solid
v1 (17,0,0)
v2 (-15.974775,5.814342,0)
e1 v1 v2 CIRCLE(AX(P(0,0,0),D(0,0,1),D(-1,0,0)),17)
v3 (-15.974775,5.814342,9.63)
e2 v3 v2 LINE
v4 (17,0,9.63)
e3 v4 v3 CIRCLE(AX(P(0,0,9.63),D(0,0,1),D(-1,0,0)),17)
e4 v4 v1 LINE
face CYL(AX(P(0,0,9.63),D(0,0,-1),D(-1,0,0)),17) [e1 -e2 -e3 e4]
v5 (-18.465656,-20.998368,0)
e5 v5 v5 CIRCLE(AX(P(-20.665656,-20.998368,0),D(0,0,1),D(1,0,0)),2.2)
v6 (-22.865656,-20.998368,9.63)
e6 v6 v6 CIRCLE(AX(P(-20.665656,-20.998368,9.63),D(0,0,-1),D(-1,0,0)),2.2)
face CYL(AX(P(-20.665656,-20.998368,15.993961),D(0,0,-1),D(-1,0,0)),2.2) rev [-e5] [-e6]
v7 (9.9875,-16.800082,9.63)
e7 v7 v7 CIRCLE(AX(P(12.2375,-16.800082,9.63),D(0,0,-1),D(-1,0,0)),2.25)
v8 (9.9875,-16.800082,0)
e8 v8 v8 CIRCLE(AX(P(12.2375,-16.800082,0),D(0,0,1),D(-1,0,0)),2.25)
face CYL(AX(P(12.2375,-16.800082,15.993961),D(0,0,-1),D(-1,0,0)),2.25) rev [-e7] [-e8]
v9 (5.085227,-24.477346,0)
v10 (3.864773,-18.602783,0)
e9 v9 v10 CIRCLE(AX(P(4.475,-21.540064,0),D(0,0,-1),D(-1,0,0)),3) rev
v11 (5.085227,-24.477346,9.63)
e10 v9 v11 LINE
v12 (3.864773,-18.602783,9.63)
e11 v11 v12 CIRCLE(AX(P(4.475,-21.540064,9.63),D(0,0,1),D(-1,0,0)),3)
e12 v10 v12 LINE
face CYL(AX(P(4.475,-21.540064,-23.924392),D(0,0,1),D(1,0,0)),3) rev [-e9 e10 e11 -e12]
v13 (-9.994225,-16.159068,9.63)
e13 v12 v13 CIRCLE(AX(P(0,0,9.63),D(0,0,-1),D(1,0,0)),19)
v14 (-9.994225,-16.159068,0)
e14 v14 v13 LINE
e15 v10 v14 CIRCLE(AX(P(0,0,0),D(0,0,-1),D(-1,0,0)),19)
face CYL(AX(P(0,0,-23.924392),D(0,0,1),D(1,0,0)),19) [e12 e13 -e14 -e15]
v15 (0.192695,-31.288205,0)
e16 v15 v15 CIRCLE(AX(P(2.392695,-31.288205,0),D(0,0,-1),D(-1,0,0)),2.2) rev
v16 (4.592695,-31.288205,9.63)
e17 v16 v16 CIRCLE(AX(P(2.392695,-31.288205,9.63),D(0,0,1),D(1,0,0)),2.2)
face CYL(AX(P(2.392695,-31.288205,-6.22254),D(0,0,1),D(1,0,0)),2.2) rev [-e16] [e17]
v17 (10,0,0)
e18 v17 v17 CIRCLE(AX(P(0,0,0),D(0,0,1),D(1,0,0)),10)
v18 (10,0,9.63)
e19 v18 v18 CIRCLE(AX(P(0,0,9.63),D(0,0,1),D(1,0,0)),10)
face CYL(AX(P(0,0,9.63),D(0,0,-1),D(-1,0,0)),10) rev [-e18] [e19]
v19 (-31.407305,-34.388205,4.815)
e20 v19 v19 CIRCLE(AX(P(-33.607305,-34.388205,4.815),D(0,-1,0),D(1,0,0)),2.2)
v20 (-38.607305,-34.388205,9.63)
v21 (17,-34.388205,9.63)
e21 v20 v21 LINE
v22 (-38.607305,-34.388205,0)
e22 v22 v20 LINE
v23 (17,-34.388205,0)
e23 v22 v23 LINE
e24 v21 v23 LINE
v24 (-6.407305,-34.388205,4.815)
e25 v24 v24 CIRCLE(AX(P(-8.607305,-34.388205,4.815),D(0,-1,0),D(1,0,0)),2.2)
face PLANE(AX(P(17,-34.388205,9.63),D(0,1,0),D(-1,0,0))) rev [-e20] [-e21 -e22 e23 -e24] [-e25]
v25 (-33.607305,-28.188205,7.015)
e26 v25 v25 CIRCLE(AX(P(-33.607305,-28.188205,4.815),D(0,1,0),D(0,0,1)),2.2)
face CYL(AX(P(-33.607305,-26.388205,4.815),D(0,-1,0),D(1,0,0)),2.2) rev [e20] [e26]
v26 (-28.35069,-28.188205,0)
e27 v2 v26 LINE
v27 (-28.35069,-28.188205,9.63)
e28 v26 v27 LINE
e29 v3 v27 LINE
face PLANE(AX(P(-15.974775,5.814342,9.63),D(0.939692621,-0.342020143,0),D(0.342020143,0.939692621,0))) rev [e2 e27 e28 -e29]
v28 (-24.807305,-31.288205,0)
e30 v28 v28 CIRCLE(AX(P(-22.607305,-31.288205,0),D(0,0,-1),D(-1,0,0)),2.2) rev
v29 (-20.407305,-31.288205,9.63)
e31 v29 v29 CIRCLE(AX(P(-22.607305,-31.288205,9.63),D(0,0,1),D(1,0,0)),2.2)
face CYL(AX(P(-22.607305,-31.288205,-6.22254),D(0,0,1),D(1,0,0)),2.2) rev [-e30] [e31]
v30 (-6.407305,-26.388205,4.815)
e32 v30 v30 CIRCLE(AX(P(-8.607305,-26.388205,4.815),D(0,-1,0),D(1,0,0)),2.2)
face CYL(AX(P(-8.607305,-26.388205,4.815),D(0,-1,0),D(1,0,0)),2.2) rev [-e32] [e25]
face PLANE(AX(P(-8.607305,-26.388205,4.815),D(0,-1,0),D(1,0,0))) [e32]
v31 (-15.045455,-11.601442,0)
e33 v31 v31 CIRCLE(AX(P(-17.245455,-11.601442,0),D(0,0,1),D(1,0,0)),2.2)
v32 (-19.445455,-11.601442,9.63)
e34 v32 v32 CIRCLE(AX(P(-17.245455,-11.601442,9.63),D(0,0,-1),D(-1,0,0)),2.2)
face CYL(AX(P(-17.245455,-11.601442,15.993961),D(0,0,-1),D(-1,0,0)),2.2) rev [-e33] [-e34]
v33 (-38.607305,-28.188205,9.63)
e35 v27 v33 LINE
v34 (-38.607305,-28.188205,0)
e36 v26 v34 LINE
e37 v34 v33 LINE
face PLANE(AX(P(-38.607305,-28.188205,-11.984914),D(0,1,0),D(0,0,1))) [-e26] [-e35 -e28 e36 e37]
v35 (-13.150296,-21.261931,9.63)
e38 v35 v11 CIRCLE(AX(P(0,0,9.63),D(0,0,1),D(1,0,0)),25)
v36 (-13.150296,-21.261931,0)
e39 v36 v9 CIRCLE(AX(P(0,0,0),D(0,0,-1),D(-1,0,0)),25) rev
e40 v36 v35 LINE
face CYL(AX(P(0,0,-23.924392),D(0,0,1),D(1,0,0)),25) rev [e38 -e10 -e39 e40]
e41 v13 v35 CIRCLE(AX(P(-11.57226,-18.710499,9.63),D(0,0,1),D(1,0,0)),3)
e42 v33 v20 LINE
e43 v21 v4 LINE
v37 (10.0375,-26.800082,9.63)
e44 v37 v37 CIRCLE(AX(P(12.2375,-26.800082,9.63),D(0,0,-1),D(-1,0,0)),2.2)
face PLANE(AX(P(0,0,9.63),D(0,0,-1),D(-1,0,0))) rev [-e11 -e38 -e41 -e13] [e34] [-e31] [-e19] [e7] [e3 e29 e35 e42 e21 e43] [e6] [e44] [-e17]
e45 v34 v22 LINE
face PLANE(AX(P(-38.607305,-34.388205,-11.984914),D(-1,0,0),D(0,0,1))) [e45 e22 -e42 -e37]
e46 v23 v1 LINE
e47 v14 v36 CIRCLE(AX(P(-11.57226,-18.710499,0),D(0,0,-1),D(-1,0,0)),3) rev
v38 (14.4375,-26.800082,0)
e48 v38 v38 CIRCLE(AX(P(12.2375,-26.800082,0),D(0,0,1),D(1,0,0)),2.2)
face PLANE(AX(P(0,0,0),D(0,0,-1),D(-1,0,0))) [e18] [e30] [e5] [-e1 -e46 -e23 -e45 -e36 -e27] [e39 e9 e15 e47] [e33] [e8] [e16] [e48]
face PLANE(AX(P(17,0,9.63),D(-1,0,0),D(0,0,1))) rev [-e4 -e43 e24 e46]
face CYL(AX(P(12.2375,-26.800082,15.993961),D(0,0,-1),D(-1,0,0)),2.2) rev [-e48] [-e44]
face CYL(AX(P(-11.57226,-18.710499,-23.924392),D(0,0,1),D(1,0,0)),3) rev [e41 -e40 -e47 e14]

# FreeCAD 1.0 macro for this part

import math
import FreeCAD as App
import Part
import Sketcher

V = App.Vector
Q = App.Units.Quantity

doc = App.newDocument("Part")
params = doc.addObject("Spreadsheet::Sheet", "Params")
for row, (alias, value) in enumerate([
    ("sketch1_diameter", "20 mm"),
    ("sketch1_radius", "17 mm"),
    ("pad1_length", "9.63 mm"),
    ("sketch2_diameter", "4.4 mm"),
    ("sketch2_diameter2", "4.5 mm"),
    ("pocket1_length", "9.63 mm"),
    ("sketch3_radius", "19 mm"),
    ("sketch3_radius2", "3 mm"),
    ("pocket2_length", "9.63 mm"),
    ("sketch4_width", "8 mm"),
    ("sketch4_height", "6.2 mm"),
    ("pad2_length", "9.63 mm"),
    ("sketch5_diameter", "4.4 mm"),
    ("pocket3_length", "8 mm"),
    ("sketch6_diameter", "4.4 mm"),
    ("pocket4_length", "9.63 mm"),
], start=1):
    params.set(f"A{row}", alias)
    params.set(f"B{row}", "=" + value)
    params.setAlias(f"B{row}", alias)

body = doc.addObject("PartDesign::Body", "Body")

sketch1 = body.newObject("Sketcher::SketchObject", "Sketch")
sketch1.AttachmentSupport = (doc.getObject("XY_Plane"), [""])
sketch1.MapMode = "FlatFace"
sketch1.addGeometry(Part.LineSegment(V(17, -34, 0), V(17, 0, 0)), False)
sketch1.addGeometry(Part.ArcOfCircle(Part.Circle(V(0, 0, 0), V(0, 0, 1), 17), math.radians(0), math.radians(160)), False)
sketch1.addGeometry(Part.LineSegment(V(-16, 6, 0), V(-31, -34, 0)), False)
sketch1.addGeometry(Part.LineSegment(V(-31, -34, 0), V(17, -34, 0)), False)
sketch1.addGeometry(Part.Circle(V(0, 0, 0), V(0, 0, 1), 10), False)
sketch1.addConstraint(Sketcher.Constraint("Tangent", 0, 2, 1, 1))
sketch1.addConstraint(Sketcher.Constraint("Tangent", 1, 2, 2, 1))
sketch1.addConstraint(Sketcher.Constraint("Coincident", 2, 2, 3, 1))
sketch1.addConstraint(Sketcher.Constraint("Coincident", 3, 2, 0, 1))
sketch1.addConstraint(Sketcher.Constraint("Vertical", 0))
sketch1.addConstraint(Sketcher.Constraint("Horizontal", 3))
sketch1.addConstraint(Sketcher.Constraint("Coincident", 1, 3, -1, 1))
sketch1.addConstraint(Sketcher.Constraint("Coincident", 4, 3, -1, 1))
sketch1.addConstraint(Sketcher.Constraint("Diameter", 4, Q("20 mm")))
sketch1.addConstraint(Sketcher.Constraint("Radius", 1, Q("17 mm")))
sketch1.addConstraint(Sketcher.Constraint("Angle", 2, Q("-110 deg")))
sketch1.addConstraint(Sketcher.Constraint("DistanceX", 3, 1, 3, 2, Q("47.607305 mm")))
sketch1.setExpression("Constraints[8]", "Params.sketch1_diameter")
sketch1.setExpression("Constraints[9]", "Params.sketch1_radius")
pad1 = body.newObject("PartDesign::Pad", "Pad")
pad1.Profile = sketch1
pad1.setExpression("Length", "Params.pad1_length")

sketch2 = body.newObject("Sketcher::SketchObject", "Sketch001")
sketch2.AttachmentSupport = (doc.getObject("XY_Plane"), [""])
sketch2.MapMode = "FlatFace"
sketch2.addGeometry(Part.Circle(V(12.2, -26.8, 0), V(0, 0, 1), 2.2), False)
sketch2.addGeometry(Part.Circle(V(12.2, -16.8, 0), V(0, 0, 1), 2.2), False)
sketch2.addGeometry(Part.Circle(V(-20.7, -21, 0), V(0, 0, 1), 2.2), False)
sketch2.addGeometry(Part.Circle(V(-17.2, -11.6, 0), V(0, 0, 1), 2.2), False)
sketch2.addConstraint(Sketcher.Constraint("Equal", 0, 2))
sketch2.addConstraint(Sketcher.Constraint("Equal", 2, 3))
sketch2.addConstraint(Sketcher.Constraint("Vertical", 0, 3, 1, 3))
sketch2.addConstraint(Sketcher.Constraint("Diameter", 0, Q("4.4 mm")))
sketch2.addConstraint(Sketcher.Constraint("Diameter", 1, Q("4.5 mm")))
sketch2.addConstraint(Sketcher.Constraint("DistanceY", 0, 3, 1, 3, Q("10 mm")))
sketch2.addConstraint(Sketcher.Constraint("DistanceX", -1, 1, 0, 3, Q("12.2375 mm")))
sketch2.addConstraint(Sketcher.Constraint("DistanceX", 2, 3, 3, 3, Q("3.420201 mm")))
sketch2.addConstraint(Sketcher.Constraint("DistanceY", 2, 3, -1, 1, Q("20.998368 mm")))
sketch2.addConstraint(Sketcher.Constraint("DistanceY", 3, 3, -1, 1, Q("11.601442 mm")))
sketch2.addConstraint(Sketcher.Constraint("DistanceY", 1, 3, 3, 3, Q("5.19864 mm")))
sketch2.addConstraint(Sketcher.Constraint("DistanceX", 2, 3, -1, 1, Q("20.665656 mm")))
sketch2.setExpression("Constraints[3]", "Params.sketch2_diameter")
sketch2.setExpression("Constraints[4]", "Params.sketch2_diameter2")
pocket1 = body.newObject("PartDesign::Pocket", "Pocket")
pocket1.Profile = sketch2
pocket1.setExpression("Length", "Params.pocket1_length")
pocket1.Reversed = True

sketch3 = body.newObject("Sketcher::SketchObject", "Sketch002")
sketch3.AttachmentSupport = (doc.getObject("XY_Plane"), [""])
sketch3.MapMode = "FlatFace"
sketch3.AttachmentOffset = App.Placement(V(0, 0, 9.63), App.Rotation())
sketch3.addGeometry(Part.ArcOfCircle(Part.Circle(V(0, 0, 0), V(0, 0, 1), 19), math.radians(-122), math.radians(-78)), False)
sketch3.addGeometry(Part.ArcOfCircle(Part.Circle(V(-11.6, -18.7, 0), V(0, 0, 1), 3), math.radians(58), math.radians(238)), False)
sketch3.addGeometry(Part.ArcOfCircle(Part.Circle(V(0, 0, 0), V(0, 0, 1), 25), math.radians(-122), math.radians(-78)), False)
sketch3.addGeometry(Part.ArcOfCircle(Part.Circle(V(4.5, -21.5, 0), V(0, 0, 1), 3), math.radians(-78), math.radians(102)), False)
sketch3.addConstraint(Sketcher.Constraint("Tangent", 0, 1, 1, 1))
sketch3.addConstraint(Sketcher.Constraint("Tangent", 1, 2, 2, 1))
sketch3.addConstraint(Sketcher.Constraint("Tangent", 2, 2, 3, 1))
sketch3.addConstraint(Sketcher.Constraint("Tangent", 3, 2, 0, 2))
sketch3.addConstraint(Sketcher.Constraint("Coincident", 0, 3, -1, 1))
sketch3.addConstraint(Sketcher.Constraint("Coincident", 2, 3, -1, 1))
sketch3.addConstraint(Sketcher.Constraint("Radius", 0, Q("19 mm")))
sketch3.addConstraint(Sketcher.Constraint("Radius", 1, Q("3 mm")))
sketch3.addConstraint(Sketcher.Constraint("DistanceX", -1, 1, 3, 3, Q("4.475 mm")))
sketch3.addConstraint(Sketcher.Constraint("DistanceY", 1, 3, -1, 1, Q("18.710499 mm")))
sketch3.setExpression("Constraints[6]", "Params.sketch3_radius")
sketch3.setExpression("Constraints[7]", "Params.sketch3_radius2")
pocket2 = body.newObject("PartDesign::Pocket", "Pocket001")
pocket2.Profile = sketch3
pocket2.setExpression("Length", "Params.pocket2_length")

sketch4 = body.newObject("Sketcher::SketchObject", "Sketch003")
sketch4.AttachmentSupport = (doc.getObject("XY_Plane"), [""])
sketch4.MapMode = "FlatFace"
sketch4.AttachmentOffset = App.Placement(V(0, 0, 9.63), App.Rotation())
sketch4.addGeometry(Part.LineSegment(V(-39, -34, 0), V(-31, -34, 0)), False)
sketch4.addGeometry(Part.LineSegment(V(-31, -34, 0), V(-28, -28, 0)), False)
sketch4.addGeometry(Part.LineSegment(V(-28, -28, 0), V(-39, -28, 0)), False)
sketch4.addGeometry(Part.LineSegment(V(-39, -28, 0), V(-39, -34, 0)), False)
sketch4.addConstraint(Sketcher.Constraint("Coincident", 0, 2, 1, 1))
sketch4.addConstraint(Sketcher.Constraint("Coincident", 1, 2, 2, 1))
sketch4.addConstraint(Sketcher.Constraint("Coincident", 2, 2, 3, 1))
sketch4.addConstraint(Sketcher.Constraint("Coincident", 3, 2, 0, 1))
sketch4.addConstraint(Sketcher.Constraint("Horizontal", 0))
sketch4.addConstraint(Sketcher.Constraint("Horizontal", 2))
sketch4.addConstraint(Sketcher.Constraint("Vertical", 3))
sketch4.addConstraint(Sketcher.Constraint("DistanceX", 0, 1, 0, 2, Q("8 mm")))
sketch4.addConstraint(Sketcher.Constraint("Angle", 1, Q("70 deg")))
sketch4.addConstraint(Sketcher.Constraint("DistanceY", 3, 2, 3, 1, Q("6.2 mm")))
sketch4.addConstraint(Sketcher.Constraint("DistanceX", 1, 2, -1, 1, Q("28.35069 mm")))
sketch4.addConstraint(Sketcher.Constraint("DistanceY", 0, 2, -1, 1, Q("34.388205 mm")))
sketch4.setExpression("Constraints[7]", "Params.sketch4_width")
sketch4.setExpression("Constraints[9]", "Params.sketch4_height")
pad2 = body.newObject("PartDesign::Pad", "Pad001")
pad2.Profile = sketch4
pad2.setExpression("Length", "Params.pad2_length")
pad2.Reversed = True

sketch5 = body.newObject("Sketcher::SketchObject", "Sketch004")
sketch5.AttachmentSupport = (doc.getObject("XZ_Plane"), [""])
sketch5.MapMode = "FlatFace"
sketch5.AttachmentOffset = App.Placement(V(0, 0, 34.388205), App.Rotation())
sketch5.addGeometry(Part.Circle(V(-33.6, 4.8, 0), V(0, 0, 1), 2.2), False)
sketch5.addGeometry(Part.Circle(V(-8.6, 4.8, 0), V(0, 0, 1), 2.2), False)
sketch5.addConstraint(Sketcher.Constraint("Equal", 0, 1))
sketch5.addConstraint(Sketcher.Constraint("Horizontal", 0, 3, 1, 3))
sketch5.addConstraint(Sketcher.Constraint("Diameter", 0, Q("4.4 mm")))
sketch5.addConstraint(Sketcher.Constraint("DistanceX", 0, 3, 1, 3, Q("25 mm")))
sketch5.addConstraint(Sketcher.Constraint("DistanceY", -1, 1, 0, 3, Q("4.815 mm")))
sketch5.addConstraint(Sketcher.Constraint("DistanceX", 0, 3, -1, 1, Q("33.607305 mm")))
sketch5.setExpression("Constraints[2]", "Params.sketch5_diameter")
pocket3 = body.newObject("PartDesign::Pocket", "Pocket002")
pocket3.Profile = sketch5
pocket3.setExpression("Length", "Params.pocket3_length")

sketch6 = body.newObject("Sketcher::SketchObject", "Sketch005")
sketch6.AttachmentSupport = (doc.getObject("XY_Plane"), [""])
sketch6.MapMode = "FlatFace"
sketch6.AttachmentOffset = App.Placement(V(0, 0, 9.63), App.Rotation())
sketch6.addGeometry(Part.Circle(V(-22.6, -31.3, 0), V(0, 0, 1), 2.2), False)
sketch6.addGeometry(Part.Circle(V(2.4, -31.3, 0), V(0, 0, 1), 2.2), False)
sketch6.addConstraint(Sketcher.Constraint("Equal", 0, 1))
sketch6.addConstraint(Sketcher.Constraint("Horizontal", 0, 3, 1, 3))
sketch6.addConstraint(Sketcher.Constraint("Diameter", 0, Q("4.4 mm")))
sketch6.addConstraint(Sketcher.Constraint("DistanceX", 0, 3, 1, 3, Q("25 mm")))
sketch6.addConstraint(Sketcher.Constraint("DistanceX", 0, 3, -1, 1, Q("22.607305 mm")))
sketch6.addConstraint(Sketcher.Constraint("DistanceY", 0, 3, -1, 1, Q("31.288205 mm")))
sketch6.setExpression("Constraints[2]", "Params.sketch6_diameter")
pocket4 = body.newObject("PartDesign::Pocket", "Pocket003")
pocket4.Profile = sketch6
pocket4.setExpression("Length", "Params.pocket4_length")

doc.recompute()
